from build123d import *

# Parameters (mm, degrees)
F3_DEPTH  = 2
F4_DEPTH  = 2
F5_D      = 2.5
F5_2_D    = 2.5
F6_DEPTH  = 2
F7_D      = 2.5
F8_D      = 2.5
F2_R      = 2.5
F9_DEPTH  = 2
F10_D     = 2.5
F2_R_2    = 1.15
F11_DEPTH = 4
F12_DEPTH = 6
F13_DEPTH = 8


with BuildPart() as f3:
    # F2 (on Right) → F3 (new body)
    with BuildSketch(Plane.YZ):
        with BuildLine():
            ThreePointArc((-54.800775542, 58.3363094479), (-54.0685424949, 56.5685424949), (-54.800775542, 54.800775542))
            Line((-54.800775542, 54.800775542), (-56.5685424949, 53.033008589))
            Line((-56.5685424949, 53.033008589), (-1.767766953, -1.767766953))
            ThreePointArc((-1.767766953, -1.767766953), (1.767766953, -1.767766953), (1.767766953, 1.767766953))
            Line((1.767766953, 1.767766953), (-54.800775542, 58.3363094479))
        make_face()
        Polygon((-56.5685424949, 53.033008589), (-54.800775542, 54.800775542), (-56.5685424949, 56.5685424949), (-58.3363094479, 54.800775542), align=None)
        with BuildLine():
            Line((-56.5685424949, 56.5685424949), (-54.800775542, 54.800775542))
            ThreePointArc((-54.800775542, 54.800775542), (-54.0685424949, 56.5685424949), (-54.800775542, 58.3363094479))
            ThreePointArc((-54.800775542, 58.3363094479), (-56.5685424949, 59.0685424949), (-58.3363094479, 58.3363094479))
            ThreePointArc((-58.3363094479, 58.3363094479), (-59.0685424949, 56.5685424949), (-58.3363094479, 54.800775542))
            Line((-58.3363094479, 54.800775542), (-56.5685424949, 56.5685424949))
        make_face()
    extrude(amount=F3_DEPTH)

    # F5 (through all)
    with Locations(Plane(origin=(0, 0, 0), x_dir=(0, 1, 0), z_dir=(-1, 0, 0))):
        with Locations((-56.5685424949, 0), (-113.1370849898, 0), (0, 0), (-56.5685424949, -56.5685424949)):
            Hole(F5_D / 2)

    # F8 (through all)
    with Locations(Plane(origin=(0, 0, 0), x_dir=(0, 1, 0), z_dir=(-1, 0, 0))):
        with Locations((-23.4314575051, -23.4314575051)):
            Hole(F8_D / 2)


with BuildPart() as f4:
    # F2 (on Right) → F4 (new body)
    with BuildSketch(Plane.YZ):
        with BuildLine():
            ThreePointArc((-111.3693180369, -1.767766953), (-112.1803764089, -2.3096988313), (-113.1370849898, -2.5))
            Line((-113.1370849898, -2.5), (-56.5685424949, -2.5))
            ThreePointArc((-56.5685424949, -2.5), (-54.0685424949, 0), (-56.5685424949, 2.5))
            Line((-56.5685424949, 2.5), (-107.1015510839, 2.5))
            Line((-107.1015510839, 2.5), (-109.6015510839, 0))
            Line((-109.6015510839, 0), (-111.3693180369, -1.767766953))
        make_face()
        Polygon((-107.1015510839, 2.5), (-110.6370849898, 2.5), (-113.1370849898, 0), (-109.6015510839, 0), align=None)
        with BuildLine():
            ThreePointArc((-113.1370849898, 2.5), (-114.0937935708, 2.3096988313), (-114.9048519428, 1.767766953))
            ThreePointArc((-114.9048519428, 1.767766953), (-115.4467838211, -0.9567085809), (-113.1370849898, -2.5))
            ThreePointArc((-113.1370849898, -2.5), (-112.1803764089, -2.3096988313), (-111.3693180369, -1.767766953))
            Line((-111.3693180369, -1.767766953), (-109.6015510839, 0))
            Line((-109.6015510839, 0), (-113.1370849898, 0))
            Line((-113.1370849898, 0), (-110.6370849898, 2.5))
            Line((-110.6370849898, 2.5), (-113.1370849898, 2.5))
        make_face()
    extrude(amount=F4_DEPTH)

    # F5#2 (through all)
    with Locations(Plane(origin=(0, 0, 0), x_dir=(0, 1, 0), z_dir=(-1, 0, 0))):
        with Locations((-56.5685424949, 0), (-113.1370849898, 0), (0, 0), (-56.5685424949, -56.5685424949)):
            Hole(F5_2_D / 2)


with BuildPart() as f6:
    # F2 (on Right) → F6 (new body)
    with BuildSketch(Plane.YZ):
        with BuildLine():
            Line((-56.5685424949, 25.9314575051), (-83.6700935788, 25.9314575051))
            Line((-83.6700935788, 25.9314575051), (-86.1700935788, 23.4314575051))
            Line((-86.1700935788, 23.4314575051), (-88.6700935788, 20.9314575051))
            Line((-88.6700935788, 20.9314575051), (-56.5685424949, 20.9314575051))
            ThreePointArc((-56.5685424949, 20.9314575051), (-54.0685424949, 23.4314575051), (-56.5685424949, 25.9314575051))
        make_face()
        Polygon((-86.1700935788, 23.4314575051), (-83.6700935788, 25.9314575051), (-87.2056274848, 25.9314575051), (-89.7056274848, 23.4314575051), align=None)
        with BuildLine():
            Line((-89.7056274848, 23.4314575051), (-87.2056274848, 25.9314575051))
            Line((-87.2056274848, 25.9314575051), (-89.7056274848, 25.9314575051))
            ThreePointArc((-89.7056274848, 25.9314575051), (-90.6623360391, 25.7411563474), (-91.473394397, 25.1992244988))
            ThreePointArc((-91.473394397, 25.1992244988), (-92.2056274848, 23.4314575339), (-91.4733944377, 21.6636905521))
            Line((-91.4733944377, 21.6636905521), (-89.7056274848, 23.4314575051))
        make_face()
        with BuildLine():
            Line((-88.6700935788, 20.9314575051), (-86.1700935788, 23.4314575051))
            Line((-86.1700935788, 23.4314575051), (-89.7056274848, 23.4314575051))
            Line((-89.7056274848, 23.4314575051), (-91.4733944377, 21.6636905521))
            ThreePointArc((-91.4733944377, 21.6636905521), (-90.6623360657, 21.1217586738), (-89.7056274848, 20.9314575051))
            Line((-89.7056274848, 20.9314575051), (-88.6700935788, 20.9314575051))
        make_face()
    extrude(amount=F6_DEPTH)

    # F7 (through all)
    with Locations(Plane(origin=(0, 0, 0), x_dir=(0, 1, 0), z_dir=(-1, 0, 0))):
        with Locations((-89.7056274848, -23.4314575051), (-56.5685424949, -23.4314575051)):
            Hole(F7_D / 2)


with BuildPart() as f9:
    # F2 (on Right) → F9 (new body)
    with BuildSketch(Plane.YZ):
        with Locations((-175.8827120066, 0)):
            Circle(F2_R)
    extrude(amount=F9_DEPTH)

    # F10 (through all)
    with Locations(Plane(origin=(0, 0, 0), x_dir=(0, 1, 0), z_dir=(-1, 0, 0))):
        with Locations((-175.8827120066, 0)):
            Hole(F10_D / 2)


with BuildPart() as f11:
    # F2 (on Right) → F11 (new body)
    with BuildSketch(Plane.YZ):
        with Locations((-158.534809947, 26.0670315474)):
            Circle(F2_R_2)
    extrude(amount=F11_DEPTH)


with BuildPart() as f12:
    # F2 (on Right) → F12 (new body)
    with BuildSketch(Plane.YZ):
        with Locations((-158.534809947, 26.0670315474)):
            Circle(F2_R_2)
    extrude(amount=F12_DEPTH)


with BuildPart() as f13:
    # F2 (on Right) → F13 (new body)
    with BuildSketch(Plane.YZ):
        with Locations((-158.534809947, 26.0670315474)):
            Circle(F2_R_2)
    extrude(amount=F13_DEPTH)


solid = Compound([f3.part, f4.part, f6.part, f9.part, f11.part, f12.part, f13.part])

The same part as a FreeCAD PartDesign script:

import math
import FreeCAD as App
import Part
import Sketcher

V = App.Vector
Q = App.Units.Quantity

doc = App.newDocument("Part")
body = doc.addObject("PartDesign::Body", "Body")

sketch1 = body.newObject("Sketcher::SketchObject", "Sketch")
sketch1.AttachmentSupport = (doc.getObject("YZ_Plane"), [""])
sketch1.MapMode = "FlatFace"
sketch1.addGeometry(Part.LineSegment(V(-58.3, 54.8, 0), V(-1.8, -1.8, 0)), False)
sketch1.addGeometry(Part.ArcOfCircle(Part.Circle(V(0, 0, 0), V(0, 0, 1), 2.5), math.radians(-135), math.radians(45)), False)
sketch1.addGeometry(Part.LineSegment(V(1.8, 1.8, 0), V(-54.8, 58.3, 0)), False)
sketch1.addGeometry(Part.ArcOfCircle(Part.Circle(V(-56.6, 56.6, 0), V(0, 0, 1), 2.5), math.radians(45), math.radians(135)), False)
sketch1.addGeometry(Part.ArcOfCircle(Part.Circle(V(-56.6, 56.6, 0), V(0, 0, 1), 2.5), math.radians(135), math.radians(225)), False)
sketch1.addConstraint(Sketcher.Constraint("Tangent", 0, 2, 1, 1))
sketch1.addConstraint(Sketcher.Constraint("Tangent", 1, 2, 2, 1))
sketch1.addConstraint(Sketcher.Constraint("Tangent", 2, 2, 3, 1))
sketch1.addConstraint(Sketcher.Constraint("Tangent", 3, 2, 4, 1))
sketch1.addConstraint(Sketcher.Constraint("Tangent", 4, 2, 0, 1))
sketch1.addConstraint(Sketcher.Constraint("Coincident", 1, 3, -1, 1))
sketch1.addConstraint(Sketcher.Constraint("Equal", 1, 3))
sketch1.addConstraint(Sketcher.Constraint("Equal", 3, 4))
sketch1.addConstraint(Sketcher.Constraint("Horizontal", 2, 2, 3, 2))
sketch1.addConstraint(Sketcher.Constraint("Radius", 1, Q("2.5 mm")))
sketch1.addConstraint(Sketcher.Constraint("Angle", 0, Q("-45 deg")))
sketch1.addConstraint(Sketcher.Constraint("Distance", 0, Q("80 mm")))
pad1 = body.newObject("PartDesign::Pad", "Pad")
pad1.Profile = sketch1
pad1.Length = 2

sketch2 = body.newObject("Sketcher::SketchObject", "Sketch001")
sketch2.AttachmentSupport = (doc.getObject("YZ_Plane"), [""])
sketch2.MapMode = "FlatFace"
sketch2.addGeometry(Part.Circle(V(-56.6, 0, 0), V(0, 0, 1), 1.2), False)
sketch2.addGeometry(Part.Circle(V(-113.1, 0, 0), V(0, 0, 1), 1.2), False)
sketch2.addGeometry(Part.Circle(V(0, 0, 0), V(0, 0, 1), 1.2), False)
sketch2.addGeometry(Part.Circle(V(-56.6, 56.6, 0), V(0, 0, 1), 1.2), False)
sketch2.addConstraint(Sketcher.Constraint("Coincident", 2, 3, -1, 1))
sketch2.addConstraint(Sketcher.Constraint("Equal", 0, 1))
sketch2.addConstraint(Sketcher.Constraint("Equal", 1, 2))
sketch2.addConstraint(Sketcher.Constraint("Equal", 2, 3))
sketch2.addConstraint(Sketcher.Constraint("PointOnObject", 0, 3, -1))
sketch2.addConstraint(Sketcher.Constraint("PointOnObject", 1, 3, -1))
sketch2.addConstraint(Sketcher.Constraint("Vertical", 0, 3, 3, 3))
sketch2.addConstraint(Sketcher.Constraint("Diameter", 0, Q("2.5 mm")))
sketch2.addConstraint(Sketcher.Constraint("DistanceX", 0, 3, -1, 1, Q("56.568542 mm")))
sketch2.addConstraint(Sketcher.Constraint("DistanceX", 1, 3, -1, 1, Q("113.137085 mm")))
sketch2.addConstraint(Sketcher.Constraint("DistanceY", -1, 1, 3, 3, Q("56.568542 mm")))
doc.recompute()
hole = body.newObject("PartDesign::Hole", "Hole")
hole.Profile = sketch2
hole.ThreadType = "None"
hole.Diameter = 2.5
hole.DepthType = "ThroughAll"
hole.Reversed = True

sketch3 = body.newObject("Sketcher::SketchObject", "Sketch002")
sketch3.AttachmentSupport = (doc.getObject("YZ_Plane"), [""])
sketch3.MapMode = "FlatFace"
sketch3.addGeometry(Part.Circle(V(-23.4, 23.4, 0), V(0, 0, 1), 1.2), False)
sketch3.addConstraint(Sketcher.Constraint("Diameter", 0, Q("2.5 mm")))
sketch3.addConstraint(Sketcher.Constraint("DistanceX", 0, 3, -1, 1, Q("23.431458 mm")))
sketch3.addConstraint(Sketcher.Constraint("DistanceY", -1, 1, 0, 3, Q("23.431458 mm")))
doc.recompute()
hole2 = body.newObject("PartDesign::Hole", "Hole001")
hole2.Profile = sketch3
hole2.ThreadType = "None"
hole2.Diameter = 2.5
hole2.DepthType = "ThroughAll"
hole2.Reversed = True
body2 = doc.addObject("PartDesign::Body", "Body001")

sketch4 = body2.newObject("Sketcher::SketchObject", "Sketch003")
sketch4.AttachmentSupport = (doc.getObject("YZ_Plane001"), [""])
sketch4.MapMode = "FlatFace"
sketch4.addGeometry(Part.LineSegment(V(-113.1, -2.5, 0), V(-56.6, -2.5, 0)), False)
sketch4.addGeometry(Part.ArcOfCircle(Part.Circle(V(-56.6, 0, 0), V(0, 0, 1), 2.5), math.radians(-90), math.radians(90)), False)
sketch4.addGeometry(Part.LineSegment(V(-56.6, 2.5, 0), V(-113.1, 2.5, 0)), False)
sketch4.addGeometry(Part.ArcOfCircle(Part.Circle(V(-113.1, 0, 0), V(0, 0, 1), 2.5), math.radians(90), math.radians(135)), False)
sketch4.addGeometry(Part.ArcOfCircle(Part.Circle(V(-113.1, 0, 0), V(0, 0, 1), 2.5), math.radians(135), math.radians(270)), False)
sketch4.addConstraint(Sketcher.Constraint("Tangent", 0, 2, 1, 1))
sketch4.addConstraint(Sketcher.Constraint("Tangent", 1, 2, 2, 1))
sketch4.addConstraint(Sketcher.Constraint("Tangent", 2, 2, 3, 1))
sketch4.addConstraint(Sketcher.Constraint("Tangent", 3, 2, 4, 1))
sketch4.addConstraint(Sketcher.Constraint("Tangent", 4, 2, 0, 1))
sketch4.addConstraint(Sketcher.Constraint("Horizontal", 0))
sketch4.addConstraint(Sketcher.Constraint("Horizontal", 2))
sketch4.addConstraint(Sketcher.Constraint("Equal", 1, 3))
sketch4.addConstraint(Sketcher.Constraint("PointOnObject", 1, 3, -1))
sketch4.addConstraint(Sketcher.Constraint("Radius", 1, Q("2.5 mm")))
sketch4.addConstraint(Sketcher.Constraint("DistanceX", 0, 1, 0, 2, Q("56.568542 mm")))
sketch4.addConstraint(Sketcher.Constraint("DistanceX", 3, 2, -1, 1, Q("114.904852 mm")))
sketch4.addConstraint(Sketcher.Constraint("DistanceX", 3, 2, 1, 2, Q("58.336309 mm")))
pad2 = body2.newObject("PartDesign::Pad", "Pad001")
pad2.Profile = sketch4
pad2.Length = 2

sketch5 = body2.newObject("Sketcher::SketchObject", "Sketch004")
sketch5.AttachmentSupport = (doc.getObject("YZ_Plane001"), [""])
sketch5.MapMode = "FlatFace"
sketch5.addGeometry(Part.Circle(V(-56.6, 0, 0), V(0, 0, 1), 1.2), False)
sketch5.addGeometry(Part.Circle(V(-113.1, 0, 0), V(0, 0, 1), 1.2), False)
sketch5.addGeometry(Part.Circle(V(0, 0, 0), V(0, 0, 1), 1.2), False)
sketch5.addGeometry(Part.Circle(V(-56.6, 56.6, 0), V(0, 0, 1), 1.2), False)
sketch5.addConstraint(Sketcher.Constraint("Coincident", 2, 3, -1, 1))
sketch5.addConstraint(Sketcher.Constraint("Equal", 0, 1))
sketch5.addConstraint(Sketcher.Constraint("Equal", 1, 2))
sketch5.addConstraint(Sketcher.Constraint("Equal", 2, 3))
sketch5.addConstraint(Sketcher.Constraint("PointOnObject", 0, 3, -1))
sketch5.addConstraint(Sketcher.Constraint("PointOnObject", 1, 3, -1))
sketch5.addConstraint(Sketcher.Constraint("Vertical", 0, 3, 3, 3))
sketch5.addConstraint(Sketcher.Constraint("Diameter", 0, Q("2.5 mm")))
sketch5.addConstraint(Sketcher.Constraint("DistanceX", 0, 3, -1, 1, Q("56.568542 mm")))
sketch5.addConstraint(Sketcher.Constraint("DistanceX", 1, 3, -1, 1, Q("113.137085 mm")))
sketch5.addConstraint(Sketcher.Constraint("DistanceY", -1, 1, 3, 3, Q("56.568542 mm")))
doc.recompute()
hole3 = body2.newObject("PartDesign::Hole", "Hole002")
hole3.Profile = sketch5
hole3.ThreadType = "None"
hole3.Diameter = 2.5
hole3.DepthType = "ThroughAll"
hole3.Reversed = True
body3 = doc.addObject("PartDesign::Body", "Body002")

sketch6 = body3.newObject("Sketcher::SketchObject", "Sketch005")
sketch6.AttachmentSupport = (doc.getObject("YZ_Plane002"), [""])
sketch6.MapMode = "FlatFace"
sketch6.addGeometry(Part.LineSegment(V(-56.6, 25.9, 0), V(-89.7, 25.9, 0)), False)
sketch6.addGeometry(Part.ArcOfCircle(Part.Circle(V(-89.7, 23.4, 0), V(0, 0, 1), 2.5), math.radians(90), math.radians(135)), False)
sketch6.addGeometry(Part.ArcOfCircle(Part.Circle(V(-89.7, 23.4, 0), V(0, 0, 1), 2.5), math.radians(135), math.radians(225)), False)
sketch6.addGeometry(Part.ArcOfCircle(Part.Circle(V(-89.7, 23.4, 0), V(0, 0, 1), 2.5), math.radians(-135), math.radians(-90)), False)
sketch6.addGeometry(Part.LineSegment(V(-89.7, 20.9, 0), V(-56.6, 20.9, 0)), False)
sketch6.addGeometry(Part.ArcOfCircle(Part.Circle(V(-56.6, 23.4, 0), V(0, 0, 1), 2.5), math.radians(-90), math.radians(90)), False)
sketch6.addConstraint(Sketcher.Constraint("Tangent", 0, 2, 1, 1))
sketch6.addConstraint(Sketcher.Constraint("Tangent", 1, 2, 2, 1))
sketch6.addConstraint(Sketcher.Constraint("Tangent", 2, 2, 3, 1))
sketch6.addConstraint(Sketcher.Constraint("Tangent", 3, 2, 4, 1))
sketch6.addConstraint(Sketcher.Constraint("Tangent", 4, 2, 5, 1))
sketch6.addConstraint(Sketcher.Constraint("Tangent", 5, 2, 0, 1))
sketch6.addConstraint(Sketcher.Constraint("Horizontal", 0))
sketch6.addConstraint(Sketcher.Constraint("Horizontal", 4))
sketch6.addConstraint(Sketcher.Constraint("Coincident", 3, 3, 1, 3))
sketch6.addConstraint(Sketcher.Constraint("Vertical", 1, 2, 2, 2))
sketch6.addConstraint(Sketcher.Constraint("Radius", 1, Q("2.5 mm")))
sketch6.addConstraint(Sketcher.Constraint("DistanceX", 0, 2, 0, 1, Q("33.137085 mm")))
sketch6.addConstraint(Sketcher.Constraint("DistanceY", -1, 1, 2, 2, Q("21.663691 mm")))
sketch6.addConstraint(Sketcher.Constraint("DistanceX", 1, 2, 5, 3, Q("34.904852 mm")))
sketch6.addConstraint(Sketcher.Constraint("DistanceX", 1, 3, -1, 1, Q("89.705627 mm")))
pad3 = body3.newObject("PartDesign::Pad", "Pad002")
pad3.Profile = sketch6
pad3.Length = 2

sketch7 = body3.newObject("Sketcher::SketchObject", "Sketch006")
sketch7.AttachmentSupport = (doc.getObject("YZ_Plane002"), [""])
sketch7.MapMode = "FlatFace"
sketch7.addGeometry(Part.Circle(V(-89.7, 23.4, 0), V(0, 0, 1), 1.2), False)
sketch7.addGeometry(Part.Circle(V(-56.6, 23.4, 0), V(0, 0, 1), 1.2), False)
sketch7.addConstraint(Sketcher.Constraint("Equal", 0, 1))
sketch7.addConstraint(Sketcher.Constraint("Horizontal", 0, 3, 1, 3))
sketch7.addConstraint(Sketcher.Constraint("Diameter", 0, Q("2.5 mm")))
sketch7.addConstraint(Sketcher.Constraint("DistanceX", 0, 3, -1, 1, Q("89.705627 mm")))
sketch7.addConstraint(Sketcher.Constraint("DistanceY", -1, 1, 0, 3, Q("23.431458 mm")))
sketch7.addConstraint(Sketcher.Constraint("DistanceX", 1, 3, -1, 1, Q("56.568542 mm")))
doc.recompute()
hole4 = body3.newObject("PartDesign::Hole", "Hole003")
hole4.Profile = sketch7
hole4.ThreadType = "None"
hole4.Diameter = 2.5
hole4.DepthType = "ThroughAll"
hole4.Reversed = True
body4 = doc.addObject("PartDesign::Body", "Body003")

sketch8 = body4.newObject("Sketcher::SketchObject", "Sketch007")
sketch8.AttachmentSupport = (doc.getObject("YZ_Plane003"), [""])
sketch8.MapMode = "FlatFace"
sketch8.addGeometry(Part.Circle(V(-175.9, 0, 0), V(0, 0, 1), 2.5), False)
sketch8.addConstraint(Sketcher.Constraint("PointOnObject", 0, 3, -1))
sketch8.addConstraint(Sketcher.Constraint("Diameter", 0, Q("5 mm")))
sketch8.addConstraint(Sketcher.Constraint("DistanceX", 0, 3, -1, 1, Q("175.882712 mm")))
pad4 = body4.newObject("PartDesign::Pad", "Pad003")
pad4.Profile = sketch8
pad4.Length = 2

sketch9 = body4.newObject("Sketcher::SketchObject", "Sketch008")
sketch9.AttachmentSupport = (doc.getObject("YZ_Plane003"), [""])
sketch9.MapMode = "FlatFace"
sketch9.addGeometry(Part.Circle(V(-175.9, 0, 0), V(0, 0, 1), 1.2), False)
sketch9.addConstraint(Sketcher.Constraint("PointOnObject", 0, 3, -1))
sketch9.addConstraint(Sketcher.Constraint("Diameter", 0, Q("2.5 mm")))
sketch9.addConstraint(Sketcher.Constraint("DistanceX", 0, 3, -1, 1, Q("175.882712 mm")))
doc.recompute()
hole5 = body4.newObject("PartDesign::Hole", "Hole004")
hole5.Profile = sketch9
hole5.ThreadType = "None"
hole5.Diameter = 2.5
hole5.DepthType = "ThroughAll"
hole5.Reversed = True
body5 = doc.addObject("PartDesign::Body", "Body004")

sketch10 = body5.newObject("Sketcher::SketchObject", "Sketch009")
sketch10.AttachmentSupport = (doc.getObject("YZ_Plane004"), [""])
sketch10.MapMode = "FlatFace"
sketch10.addGeometry(Part.Circle(V(-158.5, 26.1, 0), V(0, 0, 1), 1.1), False)
sketch10.addConstraint(Sketcher.Constraint("Diameter", 0, Q("2.3 mm")))
sketch10.addConstraint(Sketcher.Constraint("DistanceX", 0, 3, -1, 1, Q("158.53481 mm")))
sketch10.addConstraint(Sketcher.Constraint("DistanceY", -1, 1, 0, 3, Q("26.067032 mm")))
pad5 = body5.newObject("PartDesign::Pad", "Pad004")
pad5.Profile = sketch10
pad5.Length = 4
body6 = doc.addObject("PartDesign::Body", "Body005")

sketch11 = body6.newObject("Sketcher::SketchObject", "Sketch010")
sketch11.AttachmentSupport = (doc.getObject("YZ_Plane005"), [""])
sketch11.MapMode = "FlatFace"
sketch11.addGeometry(Part.Circle(V(-158.5, 26.1, 0), V(0, 0, 1), 1.1), False)
sketch11.addConstraint(Sketcher.Constraint("Diameter", 0, Q("2.3 mm")))
sketch11.addConstraint(Sketcher.Constraint("DistanceX", 0, 3, -1, 1, Q("158.53481 mm")))
sketch11.addConstraint(Sketcher.Constraint("DistanceY", -1, 1, 0, 3, Q("26.067032 mm")))
pad6 = body6.newObject("PartDesign::Pad", "Pad005")
pad6.Profile = sketch11
pad6.Length = 6
body7 = doc.addObject("PartDesign::Body", "Body006")

sketch12 = body7.newObject("Sketcher::SketchObject", "Sketch011")
sketch12.AttachmentSupport = (doc.getObject("YZ_Plane006"), [""])
sketch12.MapMode = "FlatFace"
sketch12.addGeometry(Part.Circle(V(-158.5, 26.1, 0), V(0, 0, 1), 1.1), False)
sketch12.addConstraint(Sketcher.Constraint("Diameter", 0, Q("2.3 mm")))
sketch12.addConstraint(Sketcher.Constraint("DistanceX", 0, 3, -1, 1, Q("158.53481 mm")))
sketch12.addConstraint(Sketcher.Constraint("DistanceY", -1, 1, 0, 3, Q("26.067032 mm")))
pad7 = body7.newObject("PartDesign::Pad", "Pad006")
pad7.Profile = sketch12
pad7.Length = 8

doc.recompute()
